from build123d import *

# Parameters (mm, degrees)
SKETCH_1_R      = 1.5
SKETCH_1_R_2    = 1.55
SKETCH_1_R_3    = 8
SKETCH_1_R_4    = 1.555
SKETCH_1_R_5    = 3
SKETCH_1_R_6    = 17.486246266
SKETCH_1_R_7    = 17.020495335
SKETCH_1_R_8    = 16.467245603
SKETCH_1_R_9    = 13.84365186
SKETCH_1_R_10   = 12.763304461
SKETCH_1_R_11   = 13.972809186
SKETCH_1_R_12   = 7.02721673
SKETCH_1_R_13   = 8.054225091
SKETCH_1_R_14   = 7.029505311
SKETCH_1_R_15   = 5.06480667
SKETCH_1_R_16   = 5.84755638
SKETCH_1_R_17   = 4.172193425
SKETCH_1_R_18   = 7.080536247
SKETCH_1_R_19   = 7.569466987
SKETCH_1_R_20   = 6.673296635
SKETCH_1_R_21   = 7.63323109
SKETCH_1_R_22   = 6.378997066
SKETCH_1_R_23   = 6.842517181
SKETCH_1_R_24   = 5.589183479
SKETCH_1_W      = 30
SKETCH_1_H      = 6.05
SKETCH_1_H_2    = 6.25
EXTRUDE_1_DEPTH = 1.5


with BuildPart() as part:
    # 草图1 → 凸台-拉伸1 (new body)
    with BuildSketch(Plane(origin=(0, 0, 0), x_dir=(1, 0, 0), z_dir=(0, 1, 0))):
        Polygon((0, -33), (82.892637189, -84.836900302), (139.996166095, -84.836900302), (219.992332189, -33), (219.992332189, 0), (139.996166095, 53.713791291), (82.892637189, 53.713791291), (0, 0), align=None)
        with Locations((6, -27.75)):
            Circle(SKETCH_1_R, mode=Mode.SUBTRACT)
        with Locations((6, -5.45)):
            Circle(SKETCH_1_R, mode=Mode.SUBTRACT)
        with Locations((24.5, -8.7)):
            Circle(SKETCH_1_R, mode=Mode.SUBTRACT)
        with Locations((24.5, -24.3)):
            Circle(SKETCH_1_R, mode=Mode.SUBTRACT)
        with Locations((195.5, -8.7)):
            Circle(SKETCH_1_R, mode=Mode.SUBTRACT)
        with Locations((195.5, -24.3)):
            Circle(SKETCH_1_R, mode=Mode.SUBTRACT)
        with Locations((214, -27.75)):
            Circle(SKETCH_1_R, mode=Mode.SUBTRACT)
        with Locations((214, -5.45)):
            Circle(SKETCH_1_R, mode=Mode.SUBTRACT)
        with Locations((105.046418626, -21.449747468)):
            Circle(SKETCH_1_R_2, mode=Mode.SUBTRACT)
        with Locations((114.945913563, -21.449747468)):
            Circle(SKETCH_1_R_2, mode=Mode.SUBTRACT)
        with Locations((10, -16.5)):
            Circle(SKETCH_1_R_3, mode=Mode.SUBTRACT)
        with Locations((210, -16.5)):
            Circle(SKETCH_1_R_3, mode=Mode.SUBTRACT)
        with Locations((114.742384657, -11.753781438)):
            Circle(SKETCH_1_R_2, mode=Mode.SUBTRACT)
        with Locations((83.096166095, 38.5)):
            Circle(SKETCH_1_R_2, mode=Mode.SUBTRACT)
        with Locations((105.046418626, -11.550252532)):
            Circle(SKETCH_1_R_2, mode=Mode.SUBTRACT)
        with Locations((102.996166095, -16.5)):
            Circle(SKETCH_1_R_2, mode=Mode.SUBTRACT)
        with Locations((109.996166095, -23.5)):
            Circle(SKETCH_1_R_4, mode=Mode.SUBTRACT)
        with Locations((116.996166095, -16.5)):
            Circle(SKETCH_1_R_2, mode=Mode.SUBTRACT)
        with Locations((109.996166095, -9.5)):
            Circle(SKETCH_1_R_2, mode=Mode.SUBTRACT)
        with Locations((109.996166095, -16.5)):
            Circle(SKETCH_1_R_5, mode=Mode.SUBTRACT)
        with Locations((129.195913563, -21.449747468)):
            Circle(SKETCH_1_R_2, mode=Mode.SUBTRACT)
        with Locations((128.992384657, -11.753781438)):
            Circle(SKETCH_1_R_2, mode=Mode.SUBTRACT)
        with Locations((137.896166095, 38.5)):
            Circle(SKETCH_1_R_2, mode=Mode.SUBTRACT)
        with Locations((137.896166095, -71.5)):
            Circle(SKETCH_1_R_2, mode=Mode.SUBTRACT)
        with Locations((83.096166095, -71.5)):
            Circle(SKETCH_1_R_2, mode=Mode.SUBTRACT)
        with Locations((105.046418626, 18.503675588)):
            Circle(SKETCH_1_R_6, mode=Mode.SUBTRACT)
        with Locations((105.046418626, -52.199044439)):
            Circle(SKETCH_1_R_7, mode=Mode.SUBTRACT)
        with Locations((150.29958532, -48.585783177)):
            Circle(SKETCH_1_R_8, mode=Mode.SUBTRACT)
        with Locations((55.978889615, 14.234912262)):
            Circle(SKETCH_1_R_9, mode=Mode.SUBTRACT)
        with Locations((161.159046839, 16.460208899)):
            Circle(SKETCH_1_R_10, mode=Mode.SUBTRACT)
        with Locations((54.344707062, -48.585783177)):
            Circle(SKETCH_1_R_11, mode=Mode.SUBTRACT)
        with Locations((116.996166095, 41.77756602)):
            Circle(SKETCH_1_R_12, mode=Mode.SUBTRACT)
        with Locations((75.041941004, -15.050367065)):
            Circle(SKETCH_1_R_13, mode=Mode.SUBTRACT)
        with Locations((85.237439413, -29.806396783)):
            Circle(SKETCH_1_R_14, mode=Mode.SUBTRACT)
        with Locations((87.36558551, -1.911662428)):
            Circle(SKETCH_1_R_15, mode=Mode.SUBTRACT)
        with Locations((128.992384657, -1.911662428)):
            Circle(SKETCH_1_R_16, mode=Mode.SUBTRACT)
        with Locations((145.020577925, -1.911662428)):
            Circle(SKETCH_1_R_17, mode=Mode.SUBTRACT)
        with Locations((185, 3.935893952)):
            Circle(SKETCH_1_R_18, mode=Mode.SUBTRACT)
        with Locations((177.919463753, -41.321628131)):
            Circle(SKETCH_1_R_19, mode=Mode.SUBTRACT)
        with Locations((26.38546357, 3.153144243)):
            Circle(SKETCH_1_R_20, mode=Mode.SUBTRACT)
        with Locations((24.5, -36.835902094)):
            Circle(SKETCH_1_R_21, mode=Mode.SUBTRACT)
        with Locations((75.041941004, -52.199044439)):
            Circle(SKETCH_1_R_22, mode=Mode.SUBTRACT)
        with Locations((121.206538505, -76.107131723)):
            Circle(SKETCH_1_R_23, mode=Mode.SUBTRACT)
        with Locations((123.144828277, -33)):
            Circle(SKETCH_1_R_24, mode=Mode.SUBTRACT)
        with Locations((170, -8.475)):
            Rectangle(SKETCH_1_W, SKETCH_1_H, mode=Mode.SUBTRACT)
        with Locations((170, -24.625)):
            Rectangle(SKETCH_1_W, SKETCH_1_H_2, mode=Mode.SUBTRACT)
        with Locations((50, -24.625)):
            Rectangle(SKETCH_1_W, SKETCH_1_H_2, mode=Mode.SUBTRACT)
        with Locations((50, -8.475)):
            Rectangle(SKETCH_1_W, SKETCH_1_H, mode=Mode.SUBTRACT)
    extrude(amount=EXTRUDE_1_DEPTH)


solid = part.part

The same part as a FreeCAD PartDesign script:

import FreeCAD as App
import Part
import Sketcher
from FreeCAD import Vector

doc = App.newDocument("Part")
body = doc.addObject("PartDesign::Body", "Body")

# Sketch on XZ plane
sketch1 = body.newObject("Sketcher::SketchObject", "Sketch")
sketch1.AttachmentSupport = (doc.getObject("XZ_Plane"), [""])
sketch1.MapMode = "FlatFace"
sketch1.addGeometry([
    Part.LineSegment(Vector(0, 33, 0), Vector(82.9, 84.8, 0)),  # 0
    Part.LineSegment(Vector(82.9, 84.8, 0), Vector(140, 84.8, 0)),  # 1
    Part.LineSegment(Vector(140, 84.8, 0), Vector(220, 33, 0)),  # 2
    Part.LineSegment(Vector(220, 33, 0), Vector(220, 0, 0)),  # 3
    Part.LineSegment(Vector(220, 0, 0), Vector(140, -53.7, 0)),  # 4
    Part.LineSegment(Vector(140, -53.7, 0), Vector(82.9, -53.7, 0)),  # 5
    Part.LineSegment(Vector(82.9, -53.7, 0), Vector(0, 0, 0)),  # 6
    Part.LineSegment(Vector(0, 0, 0), Vector(0, 33, 0)),  # 7
    Part.Circle(Vector(83.1, 71.5, 0), Vector(0, 0, 1), 1.6),  # 8
    Part.Circle(Vector(75, 52.2, 0), Vector(0, 0, 1), 6.4),  # 9
    Part.Circle(Vector(105, 52.2, 0), Vector(0, 0, 1), 17),  # 10
    Part.Circle(Vector(24.5, 36.8, 0), Vector(0, 0, 1), 7.6),  # 11
    Part.Circle(Vector(54.3, 48.6, 0), Vector(0, 0, 1), 14),  # 12
    Part.Circle(Vector(6, 27.8, 0), Vector(0, 0, 1), 1.5),  # 13
    Part.Circle(Vector(24.5, 24.3, 0), Vector(0, 0, 1), 1.5),  # 14
    Part.LineSegment(Vector(65, 27.8, 0), Vector(35, 27.8, 0)),  # 15
    Part.LineSegment(Vector(35, 27.8, 0), Vector(35, 21.5, 0)),  # 16
    Part.LineSegment(Vector(35, 21.5, 0), Vector(65, 21.5, 0)),  # 17
    Part.LineSegment(Vector(65, 21.5, 0), Vector(65, 27.8, 0)),  # 18
    Part.Circle(Vector(85.2, 29.8, 0), Vector(0, 0, 1), 7),  # 19
    Part.Circle(Vector(110, 23.5, 0), Vector(0, 0, 1), 1.6),  # 20
    Part.Circle(Vector(105, 21.4, 0), Vector(0, 0, 1), 1.6),  # 21
    Part.Circle(Vector(121.2, 76.1, 0), Vector(0, 0, 1), 6.8),  # 22
    Part.Circle(Vector(137.9, 71.5, 0), Vector(0, 0, 1), 1.6),  # 23
    Part.Circle(Vector(150.3, 48.6, 0), Vector(0, 0, 1), 16.5),  # 24
    Part.Circle(Vector(123.1, 33, 0), Vector(0, 0, 1), 5.6),  # 25
    Part.Circle(Vector(114.9, 21.4, 0), Vector(0, 0, 1), 1.6),  # 26
    Part.Circle(Vector(129.2, 21.4, 0), Vector(0, 0, 1), 1.6),  # 27
    Part.Circle(Vector(177.9, 41.3, 0), Vector(0, 0, 1), 7.6),  # 28
    Part.LineSegment(Vector(185, 27.8, 0), Vector(155, 27.8, 0)),  # 29
    Part.LineSegment(Vector(155, 27.8, 0), Vector(155, 21.5, 0)),  # 30
    Part.LineSegment(Vector(155, 21.5, 0), Vector(185, 21.5, 0)),  # 31
    Part.LineSegment(Vector(185, 21.5, 0), Vector(185, 27.8, 0)),  # 32
    Part.Circle(Vector(214, 27.8, 0), Vector(0, 0, 1), 1.5),  # 33
    Part.Circle(Vector(195.5, 24.3, 0), Vector(0, 0, 1), 1.5),  # 34
    Part.Circle(Vector(10, 16.5, 0), Vector(0, 0, 1), 8),  # 35
    Part.Circle(Vector(6, 5.5, 0), Vector(0, 0, 1), 1.5),  # 36
    Part.Circle(Vector(24.5, 8.7, 0), Vector(0, 0, 1), 1.5),  # 37
    Part.LineSegment(Vector(65, 11.5, 0), Vector(35, 11.5, 0)),  # 38
    Part.LineSegment(Vector(35, 11.5, 0), Vector(35, 5.5, 0)),  # 39
    Part.LineSegment(Vector(35, 5.5, 0), Vector(65, 5.5, 0)),  # 40
    Part.LineSegment(Vector(65, 5.5, 0), Vector(65, 11.5, 0)),  # 41
    Part.Circle(Vector(26.4, -3.2, 0), Vector(0, 0, 1), 6.7),  # 42
    Part.Circle(Vector(56, -14.2, 0), Vector(0, 0, 1), 13.8),  # 43
    Part.Circle(Vector(75, 15.1, 0), Vector(0, 0, 1), 8.1),  # 44
    Part.Circle(Vector(103, 16.5, 0), Vector(0, 0, 1), 1.6),  # 45
    Part.Circle(Vector(110, 16.5, 0), Vector(0, 0, 1), 3),  # 46
    Part.Circle(Vector(105, 11.6, 0), Vector(0, 0, 1), 1.6),  # 47
    Part.Circle(Vector(110, 9.5, 0), Vector(0, 0, 1), 1.6),  # 48
    Part.Circle(Vector(87.4, 1.9, 0), Vector(0, 0, 1), 5.1),  # 49
    Part.Circle(Vector(105, -18.5, 0), Vector(0, 0, 1), 17.5),  # 50
    Part.Circle(Vector(83.1, -38.5, 0), Vector(0, 0, 1), 1.6),  # 51
    Part.Circle(Vector(117, 16.5, 0), Vector(0, 0, 1), 1.6),  # 52
    Part.Circle(Vector(114.7, 11.8, 0), Vector(0, 0, 1), 1.6),  # 53
    Part.Circle(Vector(129, 11.8, 0), Vector(0, 0, 1), 1.6),  # 54
    Part.Circle(Vector(129, 1.9, 0), Vector(0, 0, 1), 5.8),  # 55
    Part.Circle(Vector(145, 1.9, 0), Vector(0, 0, 1), 4.2),  # 56
    Part.LineSegment(Vector(185, 11.5, 0), Vector(155, 11.5, 0)),  # 57
    Part.LineSegment(Vector(155, 11.5, 0), Vector(155, 5.5, 0)),  # 58
    Part.LineSegment(Vector(155, 5.5, 0), Vector(185, 5.5, 0)),  # 59
    Part.LineSegment(Vector(185, 5.5, 0), Vector(185, 11.5, 0)),  # 60
    Part.Circle(Vector(210, 16.5, 0), Vector(0, 0, 1), 8),  # 61
    Part.Circle(Vector(195.5, 8.7, 0), Vector(0, 0, 1), 1.5),  # 62
    Part.Circle(Vector(214, 5.5, 0), Vector(0, 0, 1), 1.5),  # 63
    Part.Circle(Vector(185, -3.9, 0), Vector(0, 0, 1), 7.1),  # 64
    Part.Circle(Vector(161.2, -16.5, 0), Vector(0, 0, 1), 12.8),  # 65
    Part.Circle(Vector(117, -41.8, 0), Vector(0, 0, 1), 7),  # 66
    Part.Circle(Vector(137.9, -38.5, 0), Vector(0, 0, 1), 1.6),  # 67
], False)
sketch1.addConstraint([
    Sketcher.Constraint("Coincident", 0, 2, 1, 1),
    Sketcher.Constraint("Coincident", 1, 2, 2, 1),
    Sketcher.Constraint("Coincident", 2, 2, 3, 1),
    Sketcher.Constraint("Coincident", 3, 2, 4, 1),
    Sketcher.Constraint("Coincident", 4, 2, 5, 1),
    Sketcher.Constraint("Coincident", 5, 2, 6, 1),
    Sketcher.Constraint("Coincident", 6, 2, 7, 1),
    Sketcher.Constraint("Coincident", 7, 2, 0, 1),
    Sketcher.Constraint("Coincident", 15, 2, 16, 1),
    Sketcher.Constraint("Coincident", 16, 2, 17, 1),
    Sketcher.Constraint("Coincident", 17, 2, 18, 1),
    Sketcher.Constraint("Coincident", 18, 2, 15, 1),
    Sketcher.Constraint("Coincident", 29, 2, 30, 1),
    Sketcher.Constraint("Coincident", 30, 2, 31, 1),
    Sketcher.Constraint("Coincident", 31, 2, 32, 1),
    Sketcher.Constraint("Coincident", 32, 2, 29, 1),
    Sketcher.Constraint("Coincident", 38, 2, 39, 1),
    Sketcher.Constraint("Coincident", 39, 2, 40, 1),
    Sketcher.Constraint("Coincident", 40, 2, 41, 1),
    Sketcher.Constraint("Coincident", 41, 2, 38, 1),
    Sketcher.Constraint("Coincident", 57, 2, 58, 1),
    Sketcher.Constraint("Coincident", 58, 2, 59, 1),
    Sketcher.Constraint("Coincident", 59, 2, 60, 1),
    Sketcher.Constraint("Coincident", 60, 2, 57, 1),
    Sketcher.Constraint("Horizontal", 1),
    Sketcher.Constraint("Vertical", 3),
    Sketcher.Constraint("Horizontal", 5),
    Sketcher.Constraint("Vertical", 7),
    Sketcher.Constraint("Horizontal", 15),
    Sketcher.Constraint("Vertical", 16),
    Sketcher.Constraint("Horizontal", 17),
    Sketcher.Constraint("Vertical", 18),
    Sketcher.Constraint("Horizontal", 29),
    Sketcher.Constraint("Vertical", 30),
    Sketcher.Constraint("Horizontal", 31),
    Sketcher.Constraint("Vertical", 32),
    Sketcher.Constraint("Horizontal", 38),
    Sketcher.Constraint("Vertical", 39),
    Sketcher.Constraint("Horizontal", 40),
    Sketcher.Constraint("Vertical", 41),
    Sketcher.Constraint("Horizontal", 57),
    Sketcher.Constraint("Vertical", 58),
    Sketcher.Constraint("Horizontal", 59),
    Sketcher.Constraint("Vertical", 60),
    Sketcher.Constraint("Coincident", 6, 2, -1, 1),
    Sketcher.Constraint("Equal", 13, 14),
    Sketcher.Constraint("Equal", 8, 21),
    Sketcher.Constraint("Equal", 21, 23),
    Sketcher.Constraint("Equal", 23, 26),
    Sketcher.Constraint("Equal", 26, 27),
    Sketcher.Constraint("Equal", 14, 33),
    Sketcher.Constraint("Equal", 33, 34),
    Sketcher.Constraint("Equal", 34, 36),
    Sketcher.Constraint("Equal", 36, 37),
    Sketcher.Constraint("Equal", 27, 45),
    Sketcher.Constraint("Equal", 45, 47),
    Sketcher.Constraint("Equal", 47, 48),
    Sketcher.Constraint("Equal", 48, 51),
    Sketcher.Constraint("Equal", 51, 52),
    Sketcher.Constraint("Equal", 52, 53),
    Sketcher.Constraint("Equal", 53, 54),
    Sketcher.Constraint("Equal", 35, 61),
    Sketcher.Constraint("Equal", 37, 62),
    Sketcher.Constraint("Equal", 62, 63),
    Sketcher.Constraint("Equal", 54, 67),
    Sketcher.Constraint("PointOnObject", 3, 2, -1),
    Sketcher.Constraint("Parallel", 2, 6),
    Sketcher.Constraint("Horizontal", 9, 3, 10, 3),
    Sketcher.Constraint("Horizontal", 8, 3, 23, 3),
    Sketcher.Constraint("Horizontal", 12, 3, 24, 3),
    Sketcher.Constraint("Horizontal", 21, 3, 26, 3),
    Sketcher.Constraint("Horizontal", 26, 3, 27, 3),
    Sketcher.Constraint("Horizontal", 13, 3, 33, 3),
    Sketcher.Constraint("Horizontal", 14, 3, 34, 3),
    Sketcher.Constraint("Horizontal", 35, 3, 45, 3),
    Sketcher.Constraint("Horizontal", 45, 3, 46, 3),
    Sketcher.Constraint("Horizontal", 46, 3, 52, 3),
    Sketcher.Constraint("Horizontal", 53, 3, 54, 3),
    Sketcher.Constraint("Horizontal", 49, 3, 55, 3),
    Sketcher.Constraint("Horizontal", 55, 3, 56, 3),
    Sketcher.Constraint("Horizontal", 52, 3, 61, 3),
    Sketcher.Constraint("Horizontal", 37, 3, 62, 3),
    Sketcher.Constraint("Horizontal", 36, 3, 63, 3),
    Sketcher.Constraint("Horizontal", 51, 3, 67, 3),
    Sketcher.Constraint("Horizontal", 25, 3, 2, 2),
    Sketcher.Constraint("Horizontal", 2, 2, 7, 2),
    Sketcher.Constraint("Horizontal", 33, 3, 15, 2),
    Sketcher.Constraint("Horizontal", 18, 2, 29, 2),
    Sketcher.Constraint("Horizontal", 17, 2, 30, 2),
    Sketcher.Constraint("Horizontal", 63, 3, 39, 2),
    Sketcher.Constraint("Horizontal", 41, 2, 57, 2),
    Sketcher.Constraint("Horizontal", 40, 2, 58, 2),
    Sketcher.Constraint("Vertical", 11, 3, 14, 3),
    Sketcher.Constraint("Vertical", 10, 3, 21, 3),
    Sketcher.Constraint("Vertical", 13, 3, 36, 3),
    Sketcher.Constraint("Vertical", 14, 3, 37, 3),
    Sketcher.Constraint("Vertical", 9, 3, 44, 3),
    Sketcher.Constraint("Vertical", 20, 3, 46, 3),
    Sketcher.Constraint("Vertical", 21, 3, 47, 3),
    Sketcher.Constraint("Vertical", 46, 3, 48, 3),
    Sketcher.Constraint("Vertical", 47, 3, 50, 3),
    Sketcher.Constraint("Vertical", 8, 3, 51, 3),
    Sketcher.Constraint("Vertical", 54, 3, 55, 3),
    Sketcher.Constraint("Vertical", 34, 3, 62, 3),
    Sketcher.Constraint("Vertical", 33, 3, 63, 3),
    Sketcher.Constraint("Vertical", 52, 3, 66, 3),
    Sketcher.Constraint("Vertical", 23, 3, 67, 3),
    Sketcher.Constraint("Vertical", 1, 2, 4, 2),
    Sketcher.Constraint("Vertical", 0, 2, 5, 2),
    Sketcher.Constraint("Vertical", 64, 3, 31, 2),
    Sketcher.Constraint("Vertical", 16, 2, 38, 2),
    Sketcher.Constraint("Vertical", 18, 2, 40, 2),
    Sketcher.Constraint("Vertical", 30, 2, 57, 2),
    Sketcher.Constraint("Vertical", 32, 2, 59, 2),
    Sketcher.Constraint("Equal", 17, 29),
    Sketcher.Constraint("Diameter", 13, 3.0),
    Sketcher.Constraint("Diameter", 35, 16.0),
    Sketcher.Constraint("Diameter", 46, 6.0),
    Sketcher.Constraint("Diameter", 8, 3.1),
    Sketcher.Constraint("Diameter", 20, 3.11),
    Sketcher.Constraint("DistanceX", 15, 2, 15, 1, 30.0),
    Sketcher.Constraint("DistanceY", 3, 2, 3, 1, 33.0),
    Sketcher.Constraint("DistanceX", -1, 1, 13, 3, 6.0),
    Sketcher.Constraint("DistanceX", -1, 1, 33, 3, 214.0),
    Sketcher.Constraint("DistanceX", -1, 1, 35, 3, 10.0),
    Sketcher.Constraint("DistanceX", -1, 1, 61, 3, 210.0),
    Sketcher.Constraint("DistanceX", -1, 1, 64, 3, 185.0),
    Sketcher.Constraint("DistanceX", -1, 1, 15, 2, 35.0),
    Sketcher.Constraint("DistanceY", 16, 2, 16, 1, 6.25),
    Sketcher.Constraint("DistanceY", 39, 2, 39, 1, 6.05),
    Sketcher.Constraint("DistanceY", -1, 1, 8, 3, 71.5),
    Sketcher.Constraint("DistanceX", -1, 1, 11, 3, 24.5),
    Sketcher.Constraint("DistanceY", -1, 1, 14, 3, 24.3),
    Sketcher.Constraint("DistanceY", -1, 1, 20, 3, 23.5),
    Sketcher.Constraint("DistanceX", -1, 1, 34, 3, 195.5),
    Sketcher.Constraint("DistanceY", -1, 1, 35, 3, 16.5),
    Sketcher.Constraint("DistanceY", -1, 1, 37, 3, 8.7),
    Sketcher.Constraint("DistanceY", -1, 1, 48, 3, 9.5),
    Sketcher.Constraint("DistanceY", 51, 3, -1, 1, 38.5),
    Sketcher.Constraint("DistanceY", -1, 1, 16, 2, 21.5),
    Sketcher.Constraint("DistanceY", -1, 1, 38, 2, 11.5),
    Sketcher.Constraint("Diameter", 10, 34.040991),
    Sketcher.Constraint("Diameter", 12, 27.945618),
    Sketcher.Constraint("Diameter", 19, 14.059011),
    Sketcher.Constraint("Diameter", 24, 32.934491),
    Sketcher.Constraint("Diameter", 44, 16.10845),
    Sketcher.Constraint("Diameter", 65, 25.526609),
    Sketcher.Constraint("Diameter", 9, 12.757994),
    Sketcher.Constraint("Diameter", 11, 15.266462),
    Sketcher.Constraint("Diameter", 22, 13.685034),
    Sketcher.Constraint("Diameter", 25, 11.178367),
    Sketcher.Constraint("Diameter", 28, 15.138934),
    Sketcher.Constraint("Diameter", 42, 13.346593),
    Sketcher.Constraint("Diameter", 43, 27.687304),
    Sketcher.Constraint("Diameter", 49, 10.129613),
    Sketcher.Constraint("Diameter", 50, 34.972493),
    Sketcher.Constraint("Diameter", 55, 11.695113),
    Sketcher.Constraint("Diameter", 56, 8.344387),
    Sketcher.Constraint("Diameter", 64, 14.161072),
    Sketcher.Constraint("Diameter", 66, 14.054433),
    Sketcher.Constraint("DistanceX", 1, 1, 1, 2, 57.103529),
    Sketcher.Constraint("DistanceY", -1, 1, 0, 2, 84.8369),
    Sketcher.Constraint("Distance", 0, 97.766321),
    Sketcher.Constraint("Distance", 4, 96.356411),
    Sketcher.Constraint("DistanceX", -1, 1, 9, 3, 75.041941),
    Sketcher.Constraint("DistanceX", -1, 1, 10, 3, 105.046419),
    Sketcher.Constraint("DistanceX", -1, 1, 19, 3, 85.237439),
    Sketcher.Constraint("DistanceX", -1, 1, 22, 3, 121.206539),
    Sketcher.Constraint("DistanceY", -1, 1, 22, 3, 76.107132),
    Sketcher.Constraint("DistanceX", -1, 1, 25, 3, 123.144828),
    Sketcher.Constraint("DistanceY", -1, 1, 28, 3, 41.321628),
    Sketcher.Constraint("DistanceX", -1, 1, 43, 3, 55.97889),
    Sketcher.Constraint("DistanceY", -1, 1, 53, 3, 11.753781),
    Sketcher.Constraint("DistanceY", 65, 3, -1, 1, 16.460209),
    Sketcher.Constraint("DistanceX", -1, 1, 8, 3, 83.096166),
    Sketcher.Constraint("DistanceY", -1, 1, 9, 3, 52.199044),
    Sketcher.Constraint("DistanceY", -1, 1, 11, 3, 36.835902),
    Sketcher.Constraint("DistanceX", -1, 1, 12, 3, 54.344707),
    Sketcher.Constraint("DistanceY", -1, 1, 12, 3, 48.585783),
    Sketcher.Constraint("DistanceY", -1, 1, 19, 3, 29.806397),
    Sketcher.Constraint("DistanceX", -1, 1, 20, 3, 109.996166),
    Sketcher.Constraint("DistanceY", -1, 1, 21, 3, 21.449747),
    Sketcher.Constraint("DistanceX", -1, 1, 23, 3, 137.896166),
    Sketcher.Constraint("DistanceX", -1, 1, 24, 3, 150.299585),
    Sketcher.Constraint("DistanceX", -1, 1, 26, 3, 114.945914),
    Sketcher.Constraint("DistanceX", -1, 1, 27, 3, 129.195914),
    Sketcher.Constraint("DistanceX", -1, 1, 28, 3, 177.919464),
    Sketcher.Constraint("DistanceX", -1, 1, 42, 3, 26.385464),
    Sketcher.Constraint("DistanceY", 42, 3, -1, 1, 3.153144),
    Sketcher.Constraint("DistanceY", 43, 3, -1, 1, 14.234912),
    Sketcher.Constraint("DistanceY", -1, 1, 44, 3, 15.050367),
    Sketcher.Constraint("DistanceX", -1, 1, 45, 3, 102.996166),
    Sketcher.Constraint("DistanceY", -1, 1, 47, 3, 11.550253),
    Sketcher.Constraint("DistanceX", -1, 1, 49, 3, 87.365586),
    Sketcher.Constraint("DistanceY", -1, 1, 49, 3, 1.911662),
    Sketcher.Constraint("DistanceY", 50, 3, -1, 1, 18.503676),
    Sketcher.Constraint("DistanceX", -1, 1, 52, 3, 116.996166),
    Sketcher.Constraint("DistanceX", -1, 1, 53, 3, 114.742385),
    Sketcher.Constraint("DistanceX", -1, 1, 54, 3, 128.992385),
    Sketcher.Constraint("DistanceX", -1, 1, 56, 3, 145.020578),
    Sketcher.Constraint("DistanceY", 64, 3, -1, 1, 3.935894),
    Sketcher.Constraint("DistanceX", -1, 1, 65, 3, 161.159047),
    Sketcher.Constraint("DistanceY", 66, 3, -1, 1, 41.777566),
])
pad1 = body.newObject("PartDesign::Pad", "Pad")
pad1.Profile = sketch1
pad1.Length = 1.5
pad1.Reversed = True

doc.recompute()
